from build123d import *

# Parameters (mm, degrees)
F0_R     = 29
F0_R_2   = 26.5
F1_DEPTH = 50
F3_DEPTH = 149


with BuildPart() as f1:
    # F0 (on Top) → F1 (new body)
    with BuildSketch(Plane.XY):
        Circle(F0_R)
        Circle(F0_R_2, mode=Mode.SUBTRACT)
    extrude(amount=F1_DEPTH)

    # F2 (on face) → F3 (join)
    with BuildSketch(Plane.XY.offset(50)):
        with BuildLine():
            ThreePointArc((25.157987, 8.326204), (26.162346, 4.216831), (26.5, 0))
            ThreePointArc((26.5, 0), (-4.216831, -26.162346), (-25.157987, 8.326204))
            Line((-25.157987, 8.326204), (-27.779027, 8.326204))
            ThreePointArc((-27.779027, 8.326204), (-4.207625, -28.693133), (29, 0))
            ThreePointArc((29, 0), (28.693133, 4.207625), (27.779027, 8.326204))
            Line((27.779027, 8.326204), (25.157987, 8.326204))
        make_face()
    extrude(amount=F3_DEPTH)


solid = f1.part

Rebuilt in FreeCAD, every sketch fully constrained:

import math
import FreeCAD as App
import Part
import Sketcher
from FreeCAD import Vector
Q = App.Units.Quantity

doc = App.newDocument("Part")
params = doc.addObject("Spreadsheet::Sheet", "Params")
for row, (alias, value) in enumerate([
    ("sketch1_diameter", "58 mm"),
    ("sketch1_diameter2", "53 mm"),
    ("pad1_length", "50 mm"),
    ("sketch2_radius", "29 mm"),
    ("sketch2_radius2", "26.5 mm"),
    ("pad2_length", "149 mm"),
], start=1):
    params.set(f"A{row}", alias)
    params.set(f"B{row}", "=" + value)
    params.setAlias(f"B{row}", alias)

body = doc.addObject("PartDesign::Body", "Body")

# Sketch on XY plane
sketch1 = body.newObject("Sketcher::SketchObject", "Sketch")
sketch1.AttachmentSupport = (doc.getObject("XY_Plane"), [""])
sketch1.MapMode = "FlatFace"
sketch1.addGeometry([
    Part.Circle(Vector(0, 0, 0), Vector(0, 0, 1), 29),
    Part.Circle(Vector(0, 0, 0), Vector(0, 0, 1), 26),
], False)
sketch1.addConstraint([
    Sketcher.Constraint("Coincident", 0, 3, -1, 1),
    Sketcher.Constraint("Coincident", 1, 3, -1, 1),
    Sketcher.Constraint("Diameter", 0, Q("58 mm")),
    Sketcher.Constraint("Diameter", 1, Q("53 mm")),
])
sketch1.setExpression("Constraints[2]", "Params.sketch1_diameter")
sketch1.setExpression("Constraints[3]", "Params.sketch1_diameter2")
pad1 = body.newObject("PartDesign::Pad", "Pad")
pad1.Profile = sketch1
pad1.setExpression("Length", "Params.pad1_length")

# Sketch on XY plane
sketch2 = body.newObject("Sketcher::SketchObject", "Sketch001")
sketch2.AttachmentSupport = (doc.getObject("XY_Plane"), [""])
sketch2.MapMode = "FlatFace"
sketch2.AttachmentOffset = App.Placement(Vector(0, 0, 50), App.Rotation())
sketch2.addGeometry([
    Part.ArcOfCircle(Part.Circle(Vector(0.00003, 0.000004, 0), Vector(0, 0, 1), 26.49997), math.radians(-0.000008), math.radians(18.312319)),  # 0
    Part.ArcOfCircle(Part.Circle(Vector(0, 0, 0), Vector(0, 0, 1), 26.5), math.radians(161.687692), math.radians(360.000001)),  # 1
    Part.LineSegment(Vector(-25.157987, 8.326204, 0), Vector(-27.779027, 8.326204, 0)),  # 2
    Part.ArcOfCircle(Part.Circle(Vector(0, 0, 0), Vector(0, 0, 1), 29), math.radians(163.314957), math.radians(359.999999)),  # 3
    Part.ArcOfCircle(Part.Circle(Vector(-0.000028, -0.000003, 0), Vector(0, 0, 1), 29.000028), math.radians(0.000007), math.radians(16.685034)),  # 4
    Part.LineSegment(Vector(27.779027, 8.326204, 0), Vector(25.157987, 8.326204, 0)),  # 5
], False)
sketch2.addConstraint([
    Sketcher.Constraint("Coincident", 0, 1, 1, 2),
    Sketcher.Constraint("Coincident", 1, 1, 2, 1),
    Sketcher.Constraint("Coincident", 2, 2, 3, 1),
    Sketcher.Constraint("Coincident", 3, 2, 4, 1),
    Sketcher.Constraint("Coincident", 4, 2, 5, 1),
    Sketcher.Constraint("Coincident", 5, 2, 0, 2),
    Sketcher.Constraint("Horizontal", 2),
    Sketcher.Constraint("Horizontal", 5),
    Sketcher.Constraint("Coincident", 1, 3, -1, 1),
    Sketcher.Constraint("Coincident", 3, 3, -1, 1),
    Sketcher.Constraint("PointOnObject", 0, 1, -1),
    Sketcher.Constraint("PointOnObject", 3, 2, -1),
    Sketcher.Constraint("Radius", 3, Q("29 mm")),
    Sketcher.Constraint("Radius", 1, Q("26.5 mm")),
    Sketcher.Constraint("Radius", 0, Q("26.49997 mm")),
    Sketcher.Constraint("Radius", 4, Q("29.000028 mm")),
    Sketcher.Constraint("DistanceX", 2, 2, 4, 3, Q("27.778999 mm")),
    Sketcher.Constraint("DistanceX", 5, 2, 5, 1, Q("2.62104 mm")),
    Sketcher.Constraint("DistanceY", 0, 3, 1, 1, Q("8.3262 mm")),
    Sketcher.Constraint("DistanceY", 0, 3, 4, 2, Q("8.3262 mm")),
])
sketch2.setExpression("Constraints[12]", "Params.sketch2_radius")
sketch2.setExpression("Constraints[13]", "Params.sketch2_radius2")
pad2 = body.newObject("PartDesign::Pad", "Pad001")
pad2.Profile = sketch2
pad2.setExpression("Length", "Params.pad2_length")

doc.recompute()
